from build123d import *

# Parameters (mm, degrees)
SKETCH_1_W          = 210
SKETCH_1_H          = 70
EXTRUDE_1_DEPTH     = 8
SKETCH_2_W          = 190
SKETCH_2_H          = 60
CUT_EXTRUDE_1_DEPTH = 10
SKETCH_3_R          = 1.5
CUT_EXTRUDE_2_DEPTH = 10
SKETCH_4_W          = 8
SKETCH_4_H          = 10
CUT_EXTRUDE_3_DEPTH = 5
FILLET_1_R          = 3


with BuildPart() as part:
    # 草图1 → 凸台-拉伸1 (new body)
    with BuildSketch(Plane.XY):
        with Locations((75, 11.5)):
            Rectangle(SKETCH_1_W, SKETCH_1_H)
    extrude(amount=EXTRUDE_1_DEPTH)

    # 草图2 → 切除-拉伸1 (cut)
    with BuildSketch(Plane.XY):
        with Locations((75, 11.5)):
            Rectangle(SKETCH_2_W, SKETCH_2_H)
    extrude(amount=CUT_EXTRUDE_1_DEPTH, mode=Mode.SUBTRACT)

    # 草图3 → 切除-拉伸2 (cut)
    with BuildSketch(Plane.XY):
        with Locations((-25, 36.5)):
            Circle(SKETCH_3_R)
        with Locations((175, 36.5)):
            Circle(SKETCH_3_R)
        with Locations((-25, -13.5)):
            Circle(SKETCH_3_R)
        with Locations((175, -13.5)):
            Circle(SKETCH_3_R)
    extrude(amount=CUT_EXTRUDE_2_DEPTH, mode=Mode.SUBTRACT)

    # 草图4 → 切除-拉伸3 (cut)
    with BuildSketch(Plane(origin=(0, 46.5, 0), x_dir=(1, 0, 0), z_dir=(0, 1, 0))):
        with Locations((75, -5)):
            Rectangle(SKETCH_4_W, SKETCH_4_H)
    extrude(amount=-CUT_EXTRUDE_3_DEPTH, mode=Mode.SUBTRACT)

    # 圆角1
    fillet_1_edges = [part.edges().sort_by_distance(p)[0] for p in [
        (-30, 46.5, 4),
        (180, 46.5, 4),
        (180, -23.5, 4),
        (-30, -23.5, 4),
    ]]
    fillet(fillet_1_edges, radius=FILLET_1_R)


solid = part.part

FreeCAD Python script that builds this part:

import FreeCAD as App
import Part
import Sketcher

V = App.Vector
Q = App.Units.Quantity


def edges_at(feature, points):
    """Names of the edges that pass closest to the given points."""
    edges = feature.Shape.Edges
    near = lambda p: min(range(len(edges)), key=lambda i: edges[i].distToShape(Part.Vertex(*p))[0])
    return sorted({f"Edge{near(p) + 1}" for p in points})

doc = App.newDocument("Part")
body = doc.addObject("PartDesign::Body", "Body")

sketch1 = body.newObject("Sketcher::SketchObject", "Sketch")
sketch1.AttachmentSupport = (doc.getObject("XY_Plane"), [""])
sketch1.MapMode = "FlatFace"
sketch1.addGeometry([
    Part.LineSegment(V(-30, 46, 0), V(-30, -24, 0)),
    Part.LineSegment(V(-30, -24, 0), V(180, -24, 0)),
    Part.LineSegment(V(180, -24, 0), V(180, 46, 0)),
    Part.LineSegment(V(180, 46, 0), V(-30, 46, 0)),
], False)
sketch1.addConstraint([
    Sketcher.Constraint("Coincident", 0, 2, 1, 1),
    Sketcher.Constraint("Coincident", 1, 2, 2, 1),
    Sketcher.Constraint("Coincident", 2, 2, 3, 1),
    Sketcher.Constraint("Coincident", 3, 2, 0, 1),
    Sketcher.Constraint("Vertical", 0),
    Sketcher.Constraint("Horizontal", 1),
    Sketcher.Constraint("Vertical", 2),
    Sketcher.Constraint("Horizontal", 3),
    Sketcher.Constraint("DistanceX", 1, 1, 1, 2, Q("210 mm")),
    Sketcher.Constraint("DistanceY", 0, 2, 0, 1, Q("70 mm")),
    Sketcher.Constraint("DistanceX", 0, 2, -1, 1, Q("30 mm")),
    Sketcher.Constraint("DistanceY", 0, 2, -1, 1, Q("23.5 mm")),
])
pad1 = body.newObject("PartDesign::Pad", "Pad")
pad1.Profile = sketch1
pad1.Length = 8

sketch2 = body.newObject("Sketcher::SketchObject", "Sketch001")
sketch2.AttachmentSupport = (doc.getObject("XY_Plane"), [""])
sketch2.MapMode = "FlatFace"
sketch2.addGeometry([
    Part.LineSegment(V(-20, 42, 0), V(-20, -18, 0)),
    Part.LineSegment(V(-20, -18, 0), V(170, -18, 0)),
    Part.LineSegment(V(170, -18, 0), V(170, 42, 0)),
    Part.LineSegment(V(170, 42, 0), V(-20, 42, 0)),
], False)
sketch2.addConstraint([
    Sketcher.Constraint("Coincident", 0, 2, 1, 1),
    Sketcher.Constraint("Coincident", 1, 2, 2, 1),
    Sketcher.Constraint("Coincident", 2, 2, 3, 1),
    Sketcher.Constraint("Coincident", 3, 2, 0, 1),
    Sketcher.Constraint("Vertical", 0),
    Sketcher.Constraint("Horizontal", 1),
    Sketcher.Constraint("Vertical", 2),
    Sketcher.Constraint("Horizontal", 3),
    Sketcher.Constraint("DistanceX", 1, 1, 1, 2, Q("190 mm")),
    Sketcher.Constraint("DistanceY", 0, 2, 0, 1, Q("60 mm")),
    Sketcher.Constraint("DistanceX", 0, 2, -1, 1, Q("20 mm")),
    Sketcher.Constraint("DistanceY", 0, 2, -1, 1, Q("18.5 mm")),
])
pocket1 = body.newObject("PartDesign::Pocket", "Pocket")
pocket1.Profile = sketch2
pocket1.Length = 10
pocket1.Reversed = True

sketch3 = body.newObject("Sketcher::SketchObject", "Sketch002")
sketch3.AttachmentSupport = (doc.getObject("XY_Plane"), [""])
sketch3.MapMode = "FlatFace"
sketch3.addGeometry([
    Part.Circle(V(-25, 36.5, 0), V(0, 0, 1), 1.5),
    Part.Circle(V(175, 36.5, 0), V(0, 0, 1), 1.5),
    Part.Circle(V(-25, -13.5, 0), V(0, 0, 1), 1.5),
    Part.Circle(V(175, -13.5, 0), V(0, 0, 1), 1.5),
], False)
sketch3.addConstraint([
    Sketcher.Constraint("Equal", 0, 1),
    Sketcher.Constraint("Equal", 1, 2),
    Sketcher.Constraint("Equal", 2, 3),
    Sketcher.Constraint("Horizontal", 0, 3, 1, 3),
    Sketcher.Constraint("Horizontal", 2, 3, 3, 3),
    Sketcher.Constraint("Vertical", 0, 3, 2, 3),
    Sketcher.Constraint("Vertical", 1, 3, 3, 3),
    Sketcher.Constraint("Diameter", 0, Q("3 mm")),
    Sketcher.Constraint("DistanceX", 0, 3, -1, 1, Q("25 mm")),
    Sketcher.Constraint("DistanceX", -1, 1, 1, 3, Q("175 mm")),
    Sketcher.Constraint("DistanceY", 2, 3, 0, 3, Q("50 mm")),
    Sketcher.Constraint("DistanceY", -1, 1, 0, 3, Q("36.5 mm")),
])
pocket2 = body.newObject("PartDesign::Pocket", "Pocket001")
pocket2.Profile = sketch3
pocket2.Length = 10
pocket2.Reversed = True

sketch4 = body.newObject("Sketcher::SketchObject", "Sketch003")
sketch4.AttachmentSupport = (doc.getObject("XZ_Plane"), [""])
sketch4.MapMode = "FlatFace"
sketch4.AttachmentOffset = App.Placement(V(0, 0, -46.5), App.Rotation())
sketch4.addGeometry([
    Part.LineSegment(V(71, 0, 0), V(71, 10, 0)),
    Part.LineSegment(V(71, 10, 0), V(79, 10, 0)),
    Part.LineSegment(V(79, 10, 0), V(79, 0, 0)),
    Part.LineSegment(V(79, 0, 0), V(71, 0, 0)),
], False)
sketch4.addConstraint([
    Sketcher.Constraint("Coincident", 0, 2, 1, 1),
    Sketcher.Constraint("Coincident", 1, 2, 2, 1),
    Sketcher.Constraint("Coincident", 2, 2, 3, 1),
    Sketcher.Constraint("Coincident", 3, 2, 0, 1),
    Sketcher.Constraint("Vertical", 0),
    Sketcher.Constraint("Horizontal", 1),
    Sketcher.Constraint("Vertical", 2),
    Sketcher.Constraint("Horizontal", 3),
    Sketcher.Constraint("PointOnObject", 2, 2, -1),
    Sketcher.Constraint("DistanceX", 1, 1, 1, 2, Q("8 mm")),
    Sketcher.Constraint("DistanceY", 0, 1, 0, 2, Q("10 mm")),
    Sketcher.Constraint("DistanceX", -1, 1, 0, 2, Q("71 mm")),
])
pocket3 = body.newObject("PartDesign::Pocket", "Pocket002")
pocket3.Profile = sketch4
pocket3.Length = 5
pocket3.Reversed = True
doc.recompute()

fillet = body.newObject("PartDesign::Fillet", "Fillet")
fillet.Base = (pocket3, edges_at(pocket3, [
    (-30, 46.5, 4),
    (180, 46.5, 4),
    (180, -23.5, 4),
    (-30, -23.5, 4),
]))
fillet.Radius = 3

doc.recompute()
